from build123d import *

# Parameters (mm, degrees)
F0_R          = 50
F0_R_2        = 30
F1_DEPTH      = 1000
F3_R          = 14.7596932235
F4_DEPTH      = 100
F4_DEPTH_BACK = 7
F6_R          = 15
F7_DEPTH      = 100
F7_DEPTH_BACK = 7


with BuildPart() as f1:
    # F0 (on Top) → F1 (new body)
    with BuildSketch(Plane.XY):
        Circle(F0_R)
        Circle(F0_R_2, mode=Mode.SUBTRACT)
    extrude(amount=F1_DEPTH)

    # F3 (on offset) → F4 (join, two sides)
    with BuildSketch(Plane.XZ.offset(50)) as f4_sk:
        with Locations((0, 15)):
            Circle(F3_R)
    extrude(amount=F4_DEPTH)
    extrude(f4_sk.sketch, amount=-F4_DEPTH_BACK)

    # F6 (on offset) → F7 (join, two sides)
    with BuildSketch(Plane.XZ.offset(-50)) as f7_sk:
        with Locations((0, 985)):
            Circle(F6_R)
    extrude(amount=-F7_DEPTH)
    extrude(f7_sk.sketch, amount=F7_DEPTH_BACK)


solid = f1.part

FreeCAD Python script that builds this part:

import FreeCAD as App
import Part
import Sketcher

V = App.Vector
Q = App.Units.Quantity

doc = App.newDocument("Part")
body = doc.addObject("PartDesign::Body", "Body")

sketch1 = body.newObject("Sketcher::SketchObject", "Sketch")
sketch1.AttachmentSupport = (doc.getObject("XY_Plane"), [""])
sketch1.MapMode = "FlatFace"
sketch1.addGeometry(Part.Circle(V(0, 0, 0), V(0, 0, 1), 50), False)
sketch1.addGeometry(Part.Circle(V(0, 0, 0), V(0, 0, 1), 30), False)
sketch1.addConstraint(Sketcher.Constraint("Coincident", 0, 3, -1, 1))
sketch1.addConstraint(Sketcher.Constraint("Coincident", 1, 3, -1, 1))
sketch1.addConstraint(Sketcher.Constraint("Diameter", 0, Q("100 mm")))
sketch1.addConstraint(Sketcher.Constraint("Diameter", 1, Q("60 mm")))
pad1 = body.newObject("PartDesign::Pad", "Pad")
pad1.Profile = sketch1
pad1.Length = 1000

sketch2 = body.newObject("Sketcher::SketchObject", "Sketch001")
sketch2.AttachmentSupport = (doc.getObject("XZ_Plane"), [""])
sketch2.MapMode = "FlatFace"
sketch2.AttachmentOffset = App.Placement(V(0, 0, 50), App.Rotation())
sketch2.addGeometry(Part.Circle(V(0, 15, 0), V(0, 0, 1), 14.759693), False)
sketch2.addConstraint(Sketcher.Constraint("PointOnObject", 0, 3, -2))
sketch2.addConstraint(Sketcher.Constraint("DistanceY", -1, 1, 0, 3, Q("15 mm")))
sketch2.addConstraint(Sketcher.Constraint("Diameter", 0, Q("29.519386 mm")))
pad2 = body.newObject("PartDesign::Pad", "Pad001")
pad2.Profile = sketch2
pad2.Type = "TwoLengths"
pad2.Length = 100
pad2.Length2 = 7

sketch3 = body.newObject("Sketcher::SketchObject", "Sketch002")
sketch3.AttachmentSupport = (doc.getObject("XZ_Plane"), [""])
sketch3.MapMode = "FlatFace"
sketch3.AttachmentOffset = App.Placement(V(0, 0, -50), App.Rotation())
sketch3.addGeometry(Part.Circle(V(0, 985, 0), V(0, 0, 1), 15), False)
sketch3.addConstraint(Sketcher.Constraint("PointOnObject", 0, 3, -2))
sketch3.addConstraint(Sketcher.Constraint("Diameter", 0, Q("30 mm")))
sketch3.addConstraint(Sketcher.Constraint("DistanceY", -1, 1, 0, 3, Q("985 mm")))
pad3 = body.newObject("PartDesign::Pad", "Pad002")
pad3.Profile = sketch3
pad3.Type = "TwoLengths"
pad3.Length = 100
pad3.Length2 = 7
pad3.Reversed = True

doc.recompute()
